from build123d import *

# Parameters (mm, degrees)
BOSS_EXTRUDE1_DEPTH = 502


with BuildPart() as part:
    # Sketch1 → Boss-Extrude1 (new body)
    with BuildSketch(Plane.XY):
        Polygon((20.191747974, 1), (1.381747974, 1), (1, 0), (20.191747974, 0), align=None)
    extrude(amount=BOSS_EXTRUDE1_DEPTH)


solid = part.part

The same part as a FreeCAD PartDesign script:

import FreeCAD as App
import Part
import Sketcher
Q = App.Units.Quantity

doc = App.newDocument("Part")
body = doc.addObject("PartDesign::Body", "Body")

# Sketch on XY plane
sketch1 = body.newObject("Sketcher::SketchObject", "Sketch")
sketch1.AttachmentSupport = (doc.getObject("XY_Plane"), [""])
sketch1.MapMode = "FlatFace"
sketch1.addGeometry([
    Part.LineSegment(App.Vector(20.191748, 1, 0), App.Vector(1.381748, 1, 0)),
    Part.LineSegment(App.Vector(1.381748, 1, 0), App.Vector(1, 0, 0)),
    Part.LineSegment(App.Vector(1, 0, 0), App.Vector(20.191748, 0, 0)),
    Part.LineSegment(App.Vector(20.191748, 0, 0), App.Vector(20.191748, 1, 0)),
], False)
sketch1.addConstraint([
    Sketcher.Constraint("Coincident", 0, 2, 1, 1),
    Sketcher.Constraint("Coincident", 1, 2, 2, 1),
    Sketcher.Constraint("Coincident", 2, 2, 3, 1),
    Sketcher.Constraint("Coincident", 3, 2, 0, 1),
    Sketcher.Constraint("Horizontal", 0),
    Sketcher.Constraint("Horizontal", 2),
    Sketcher.Constraint("Vertical", 3),
    Sketcher.Constraint("PointOnObject", 1, 2, -1),
    Sketcher.Constraint("DistanceY", 3, 1, 3, 2, Q("1 mm")),
    Sketcher.Constraint("DistanceX", -1, 1, 1, 2, Q("1 mm")),
    Sketcher.Constraint("DistanceX", 0, 2, 0, 1, Q("18.81 mm")),
    Sketcher.Constraint("Distance", 1, Q("1.070388 mm")),
])
pad1 = body.newObject("PartDesign::Pad", "Pad")
pad1.Profile = sketch1
pad1.Length = 502

doc.recompute()
